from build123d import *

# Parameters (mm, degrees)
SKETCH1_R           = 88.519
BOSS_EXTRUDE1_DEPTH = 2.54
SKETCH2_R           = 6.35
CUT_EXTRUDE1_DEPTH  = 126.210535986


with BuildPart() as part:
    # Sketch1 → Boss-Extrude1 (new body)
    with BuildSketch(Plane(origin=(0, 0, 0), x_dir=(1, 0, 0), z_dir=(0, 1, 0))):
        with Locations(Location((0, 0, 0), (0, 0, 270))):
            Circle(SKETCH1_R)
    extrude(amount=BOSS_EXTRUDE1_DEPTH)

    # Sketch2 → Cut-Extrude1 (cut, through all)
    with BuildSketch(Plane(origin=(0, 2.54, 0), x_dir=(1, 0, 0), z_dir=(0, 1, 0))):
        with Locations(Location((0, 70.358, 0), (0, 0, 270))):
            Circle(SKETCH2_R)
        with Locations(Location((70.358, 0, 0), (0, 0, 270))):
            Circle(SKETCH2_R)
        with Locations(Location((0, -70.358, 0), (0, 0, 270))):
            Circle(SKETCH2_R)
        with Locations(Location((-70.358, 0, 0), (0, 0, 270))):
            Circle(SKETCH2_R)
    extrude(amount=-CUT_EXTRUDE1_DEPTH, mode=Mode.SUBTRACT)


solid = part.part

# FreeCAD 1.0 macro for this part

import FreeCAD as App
import Part
import Sketcher

V = App.Vector
Q = App.Units.Quantity

doc = App.newDocument("Part")
body = doc.addObject("PartDesign::Body", "Body")

sketch1 = doc.addObject("Sketcher::SketchObject", "Sketch")
body.addObject(sketch1)
sketch1.AttachmentSupport = (doc.XZ_Plane, [""])
sketch1.MapMode = "FlatFace"
sketch1.addGeometry(Part.Circle(V(0, 0, 0), V(0, 0, 1), 89), False)
sketch1.addConstraint(Sketcher.Constraint("Coincident", 0, 3, -1, 1))
sketch1.addConstraint(Sketcher.Constraint("Diameter", 0, Q("6.97 in")))
pad1 = doc.addObject("PartDesign::Pad", "Pad")
body.addObject(pad1)
pad1.Profile = sketch1
pad1.Length = Q("0.1 in")
pad1.Reversed = True

sketch2 = doc.addObject("Sketcher::SketchObject", "Sketch001")
body.addObject(sketch2)
sketch2.AttachmentSupport = (doc.XZ_Plane, [""])
sketch2.MapMode = "FlatFace"
sketch2.AttachmentOffset = App.Placement(V(0, 0, -0.1 * 25.4), App.Rotation())
sketch2.addGeometry(Part.Circle(V(0, -70, 0), V(0, 0, 1), 6), False)
sketch2.addGeometry(Part.Circle(V(70, 0, 0), V(0, 0, 1), 6), False)
sketch2.addGeometry(Part.Circle(V(0, 70, 0), V(0, 0, 1), 6), False)
sketch2.addGeometry(Part.Circle(V(-70, 0, 0), V(0, 0, 1), 6), False)
sketch2.addConstraint(Sketcher.Constraint("Equal", 0, 1))
sketch2.addConstraint(Sketcher.Constraint("Equal", 1, 2))
sketch2.addConstraint(Sketcher.Constraint("Equal", 2, 3))
sketch2.addConstraint(Sketcher.Constraint("Symmetric", 0, 3, 2, 3, -1, 1))
sketch2.addConstraint(Sketcher.Constraint("Symmetric", 1, 3, 3, 3, -1, 1))
sketch2.addConstraint(Sketcher.Constraint("PointOnObject", 0, 3, -2))
sketch2.addConstraint(Sketcher.Constraint("PointOnObject", 1, 3, -1))
sketch2.addConstraint(Sketcher.Constraint("Diameter", 0, Q("0.5 in")))
sketch2.addConstraint(Sketcher.Constraint("DistanceY", 0, 3, -1, 1, Q("2.77 in")))
sketch2.addConstraint(Sketcher.Constraint("DistanceX", -1, 1, 1, 3, Q("2.77 in")))
pocket1 = doc.addObject("PartDesign::Pocket", "Pocket")
body.addObject(pocket1)
pocket1.Profile = sketch2
pocket1.Type = "ThroughAll"
pocket1.Reversed = True

doc.recompute()
